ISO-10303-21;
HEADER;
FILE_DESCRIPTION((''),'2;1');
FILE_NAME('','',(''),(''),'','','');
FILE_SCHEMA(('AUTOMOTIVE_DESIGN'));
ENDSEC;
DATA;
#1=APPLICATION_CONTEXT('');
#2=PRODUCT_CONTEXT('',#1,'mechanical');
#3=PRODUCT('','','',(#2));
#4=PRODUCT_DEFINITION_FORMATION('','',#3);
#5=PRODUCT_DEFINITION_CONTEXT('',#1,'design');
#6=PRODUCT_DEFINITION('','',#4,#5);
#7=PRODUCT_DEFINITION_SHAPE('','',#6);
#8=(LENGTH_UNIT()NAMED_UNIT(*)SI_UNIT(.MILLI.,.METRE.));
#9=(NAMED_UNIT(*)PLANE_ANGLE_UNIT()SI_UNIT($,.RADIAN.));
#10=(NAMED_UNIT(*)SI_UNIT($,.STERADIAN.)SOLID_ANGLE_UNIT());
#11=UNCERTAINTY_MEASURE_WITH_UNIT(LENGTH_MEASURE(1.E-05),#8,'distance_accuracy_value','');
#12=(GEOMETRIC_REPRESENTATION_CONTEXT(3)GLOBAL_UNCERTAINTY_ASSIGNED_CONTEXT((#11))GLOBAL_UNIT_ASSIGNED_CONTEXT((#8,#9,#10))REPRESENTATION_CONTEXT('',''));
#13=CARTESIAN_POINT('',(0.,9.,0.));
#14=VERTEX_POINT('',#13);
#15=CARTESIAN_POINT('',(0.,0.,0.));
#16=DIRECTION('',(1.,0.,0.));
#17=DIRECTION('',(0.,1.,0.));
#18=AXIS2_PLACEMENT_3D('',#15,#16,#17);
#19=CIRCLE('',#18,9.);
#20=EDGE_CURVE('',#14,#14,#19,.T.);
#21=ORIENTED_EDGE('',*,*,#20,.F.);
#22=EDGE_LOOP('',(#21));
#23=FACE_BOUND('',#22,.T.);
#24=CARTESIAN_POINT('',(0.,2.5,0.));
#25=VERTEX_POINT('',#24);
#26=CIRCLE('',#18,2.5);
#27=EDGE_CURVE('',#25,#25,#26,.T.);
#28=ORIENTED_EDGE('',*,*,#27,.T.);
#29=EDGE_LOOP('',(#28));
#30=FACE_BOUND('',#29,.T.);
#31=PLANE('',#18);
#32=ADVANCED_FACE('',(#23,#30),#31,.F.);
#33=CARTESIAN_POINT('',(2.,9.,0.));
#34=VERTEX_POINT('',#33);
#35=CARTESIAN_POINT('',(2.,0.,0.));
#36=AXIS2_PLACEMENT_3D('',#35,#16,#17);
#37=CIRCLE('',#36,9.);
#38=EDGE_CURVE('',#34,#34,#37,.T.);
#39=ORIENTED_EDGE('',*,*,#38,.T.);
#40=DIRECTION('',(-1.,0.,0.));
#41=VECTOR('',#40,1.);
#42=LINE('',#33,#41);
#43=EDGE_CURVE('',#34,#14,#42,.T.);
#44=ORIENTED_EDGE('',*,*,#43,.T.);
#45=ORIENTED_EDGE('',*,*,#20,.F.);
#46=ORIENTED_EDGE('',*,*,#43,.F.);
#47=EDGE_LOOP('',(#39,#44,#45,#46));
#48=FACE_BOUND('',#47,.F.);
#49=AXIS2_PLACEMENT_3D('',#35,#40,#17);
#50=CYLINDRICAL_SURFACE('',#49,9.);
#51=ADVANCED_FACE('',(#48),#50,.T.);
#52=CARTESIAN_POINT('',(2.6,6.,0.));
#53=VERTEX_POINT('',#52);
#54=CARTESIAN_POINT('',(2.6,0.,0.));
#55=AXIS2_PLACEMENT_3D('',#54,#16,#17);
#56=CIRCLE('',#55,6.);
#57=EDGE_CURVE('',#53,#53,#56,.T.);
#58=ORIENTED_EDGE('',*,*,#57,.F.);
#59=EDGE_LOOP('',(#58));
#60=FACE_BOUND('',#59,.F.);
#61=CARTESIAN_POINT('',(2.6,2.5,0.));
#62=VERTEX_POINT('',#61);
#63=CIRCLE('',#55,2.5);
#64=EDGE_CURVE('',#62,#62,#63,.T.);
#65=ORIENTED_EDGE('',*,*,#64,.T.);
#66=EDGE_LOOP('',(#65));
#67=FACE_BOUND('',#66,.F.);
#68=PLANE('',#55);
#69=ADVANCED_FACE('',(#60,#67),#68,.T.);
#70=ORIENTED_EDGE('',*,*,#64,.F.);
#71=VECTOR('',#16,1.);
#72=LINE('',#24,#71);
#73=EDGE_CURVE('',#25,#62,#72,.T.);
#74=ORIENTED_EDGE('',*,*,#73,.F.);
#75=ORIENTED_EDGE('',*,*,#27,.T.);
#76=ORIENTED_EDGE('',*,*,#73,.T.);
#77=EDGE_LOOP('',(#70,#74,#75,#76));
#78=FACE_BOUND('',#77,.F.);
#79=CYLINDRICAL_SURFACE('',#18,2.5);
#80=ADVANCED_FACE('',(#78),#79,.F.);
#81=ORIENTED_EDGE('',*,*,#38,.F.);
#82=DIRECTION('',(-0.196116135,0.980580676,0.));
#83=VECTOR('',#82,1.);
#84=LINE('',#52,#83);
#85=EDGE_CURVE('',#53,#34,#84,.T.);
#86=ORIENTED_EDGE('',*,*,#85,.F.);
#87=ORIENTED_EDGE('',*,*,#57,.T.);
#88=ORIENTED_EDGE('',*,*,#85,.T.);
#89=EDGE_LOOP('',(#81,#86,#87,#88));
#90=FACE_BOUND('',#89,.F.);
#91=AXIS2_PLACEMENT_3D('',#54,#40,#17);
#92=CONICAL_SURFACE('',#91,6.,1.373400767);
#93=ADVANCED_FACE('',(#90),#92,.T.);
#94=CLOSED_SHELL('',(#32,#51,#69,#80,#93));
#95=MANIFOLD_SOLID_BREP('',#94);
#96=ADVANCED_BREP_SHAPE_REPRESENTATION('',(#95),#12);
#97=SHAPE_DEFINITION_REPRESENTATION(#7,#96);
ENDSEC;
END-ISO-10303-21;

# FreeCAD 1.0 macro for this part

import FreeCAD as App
import Part
import Sketcher
from FreeCAD import Vector
Q = App.Units.Quantity

doc = App.newDocument("Part")
body = doc.addObject("PartDesign::Body", "Body")

# Sketch on XY plane
sketch1 = body.newObject("Sketcher::SketchObject", "Sketch")
sketch1.AttachmentSupport = (doc.getObject("XY_Plane"), [""])
sketch1.MapMode = "FlatFace"
sketch1.addGeometry([
    Part.LineSegment(Vector(0, 9, 0), Vector(0, 2.5, 0)),  # 0
    Part.LineSegment(Vector(0, 2.5, 0), Vector(2.6, 2.5, 0)),  # 1
    Part.LineSegment(Vector(2.6, 2.5, 0), Vector(2.6, 6, 0)),  # 2
    Part.LineSegment(Vector(2.6, 6, 0), Vector(2, 9, 0)),  # 3
    Part.LineSegment(Vector(2, 9, 0), Vector(0, 9, 0)),  # 4
], False)
sketch1.addConstraint([
    Sketcher.Constraint("Coincident", 0, 2, 1, 1),
    Sketcher.Constraint("Coincident", 1, 2, 2, 1),
    Sketcher.Constraint("Coincident", 2, 2, 3, 1),
    Sketcher.Constraint("Coincident", 3, 2, 4, 1),
    Sketcher.Constraint("Coincident", 4, 2, 0, 1),
    Sketcher.Constraint("Vertical", 0),
    Sketcher.Constraint("Horizontal", 1),
    Sketcher.Constraint("Vertical", 2),
    Sketcher.Constraint("Horizontal", 4),
    Sketcher.Constraint("PointOnObject", 0, 2, -2),
    Sketcher.Constraint("DistanceX", 4, 2, 4, 1, Q("2 mm")),
    Sketcher.Constraint("DistanceX", 1, 1, 1, 2, Q("2.6 mm")),
    Sketcher.Constraint("DistanceY", -1, 1, 3, 2, Q("9 mm")),
    Sketcher.Constraint("DistanceY", 2, 2, 3, 2, Q("3 mm")),
    Sketcher.Constraint("DistanceY", 0, 2, 0, 1, Q("6.5 mm")),
])
revolution = body.newObject("PartDesign::Revolution", "Revolution")
revolution.Profile = sketch1
revolution.ReferenceAxis = (sketch1, ["H_Axis"])
revolution.Angle = 360

doc.recompute()
